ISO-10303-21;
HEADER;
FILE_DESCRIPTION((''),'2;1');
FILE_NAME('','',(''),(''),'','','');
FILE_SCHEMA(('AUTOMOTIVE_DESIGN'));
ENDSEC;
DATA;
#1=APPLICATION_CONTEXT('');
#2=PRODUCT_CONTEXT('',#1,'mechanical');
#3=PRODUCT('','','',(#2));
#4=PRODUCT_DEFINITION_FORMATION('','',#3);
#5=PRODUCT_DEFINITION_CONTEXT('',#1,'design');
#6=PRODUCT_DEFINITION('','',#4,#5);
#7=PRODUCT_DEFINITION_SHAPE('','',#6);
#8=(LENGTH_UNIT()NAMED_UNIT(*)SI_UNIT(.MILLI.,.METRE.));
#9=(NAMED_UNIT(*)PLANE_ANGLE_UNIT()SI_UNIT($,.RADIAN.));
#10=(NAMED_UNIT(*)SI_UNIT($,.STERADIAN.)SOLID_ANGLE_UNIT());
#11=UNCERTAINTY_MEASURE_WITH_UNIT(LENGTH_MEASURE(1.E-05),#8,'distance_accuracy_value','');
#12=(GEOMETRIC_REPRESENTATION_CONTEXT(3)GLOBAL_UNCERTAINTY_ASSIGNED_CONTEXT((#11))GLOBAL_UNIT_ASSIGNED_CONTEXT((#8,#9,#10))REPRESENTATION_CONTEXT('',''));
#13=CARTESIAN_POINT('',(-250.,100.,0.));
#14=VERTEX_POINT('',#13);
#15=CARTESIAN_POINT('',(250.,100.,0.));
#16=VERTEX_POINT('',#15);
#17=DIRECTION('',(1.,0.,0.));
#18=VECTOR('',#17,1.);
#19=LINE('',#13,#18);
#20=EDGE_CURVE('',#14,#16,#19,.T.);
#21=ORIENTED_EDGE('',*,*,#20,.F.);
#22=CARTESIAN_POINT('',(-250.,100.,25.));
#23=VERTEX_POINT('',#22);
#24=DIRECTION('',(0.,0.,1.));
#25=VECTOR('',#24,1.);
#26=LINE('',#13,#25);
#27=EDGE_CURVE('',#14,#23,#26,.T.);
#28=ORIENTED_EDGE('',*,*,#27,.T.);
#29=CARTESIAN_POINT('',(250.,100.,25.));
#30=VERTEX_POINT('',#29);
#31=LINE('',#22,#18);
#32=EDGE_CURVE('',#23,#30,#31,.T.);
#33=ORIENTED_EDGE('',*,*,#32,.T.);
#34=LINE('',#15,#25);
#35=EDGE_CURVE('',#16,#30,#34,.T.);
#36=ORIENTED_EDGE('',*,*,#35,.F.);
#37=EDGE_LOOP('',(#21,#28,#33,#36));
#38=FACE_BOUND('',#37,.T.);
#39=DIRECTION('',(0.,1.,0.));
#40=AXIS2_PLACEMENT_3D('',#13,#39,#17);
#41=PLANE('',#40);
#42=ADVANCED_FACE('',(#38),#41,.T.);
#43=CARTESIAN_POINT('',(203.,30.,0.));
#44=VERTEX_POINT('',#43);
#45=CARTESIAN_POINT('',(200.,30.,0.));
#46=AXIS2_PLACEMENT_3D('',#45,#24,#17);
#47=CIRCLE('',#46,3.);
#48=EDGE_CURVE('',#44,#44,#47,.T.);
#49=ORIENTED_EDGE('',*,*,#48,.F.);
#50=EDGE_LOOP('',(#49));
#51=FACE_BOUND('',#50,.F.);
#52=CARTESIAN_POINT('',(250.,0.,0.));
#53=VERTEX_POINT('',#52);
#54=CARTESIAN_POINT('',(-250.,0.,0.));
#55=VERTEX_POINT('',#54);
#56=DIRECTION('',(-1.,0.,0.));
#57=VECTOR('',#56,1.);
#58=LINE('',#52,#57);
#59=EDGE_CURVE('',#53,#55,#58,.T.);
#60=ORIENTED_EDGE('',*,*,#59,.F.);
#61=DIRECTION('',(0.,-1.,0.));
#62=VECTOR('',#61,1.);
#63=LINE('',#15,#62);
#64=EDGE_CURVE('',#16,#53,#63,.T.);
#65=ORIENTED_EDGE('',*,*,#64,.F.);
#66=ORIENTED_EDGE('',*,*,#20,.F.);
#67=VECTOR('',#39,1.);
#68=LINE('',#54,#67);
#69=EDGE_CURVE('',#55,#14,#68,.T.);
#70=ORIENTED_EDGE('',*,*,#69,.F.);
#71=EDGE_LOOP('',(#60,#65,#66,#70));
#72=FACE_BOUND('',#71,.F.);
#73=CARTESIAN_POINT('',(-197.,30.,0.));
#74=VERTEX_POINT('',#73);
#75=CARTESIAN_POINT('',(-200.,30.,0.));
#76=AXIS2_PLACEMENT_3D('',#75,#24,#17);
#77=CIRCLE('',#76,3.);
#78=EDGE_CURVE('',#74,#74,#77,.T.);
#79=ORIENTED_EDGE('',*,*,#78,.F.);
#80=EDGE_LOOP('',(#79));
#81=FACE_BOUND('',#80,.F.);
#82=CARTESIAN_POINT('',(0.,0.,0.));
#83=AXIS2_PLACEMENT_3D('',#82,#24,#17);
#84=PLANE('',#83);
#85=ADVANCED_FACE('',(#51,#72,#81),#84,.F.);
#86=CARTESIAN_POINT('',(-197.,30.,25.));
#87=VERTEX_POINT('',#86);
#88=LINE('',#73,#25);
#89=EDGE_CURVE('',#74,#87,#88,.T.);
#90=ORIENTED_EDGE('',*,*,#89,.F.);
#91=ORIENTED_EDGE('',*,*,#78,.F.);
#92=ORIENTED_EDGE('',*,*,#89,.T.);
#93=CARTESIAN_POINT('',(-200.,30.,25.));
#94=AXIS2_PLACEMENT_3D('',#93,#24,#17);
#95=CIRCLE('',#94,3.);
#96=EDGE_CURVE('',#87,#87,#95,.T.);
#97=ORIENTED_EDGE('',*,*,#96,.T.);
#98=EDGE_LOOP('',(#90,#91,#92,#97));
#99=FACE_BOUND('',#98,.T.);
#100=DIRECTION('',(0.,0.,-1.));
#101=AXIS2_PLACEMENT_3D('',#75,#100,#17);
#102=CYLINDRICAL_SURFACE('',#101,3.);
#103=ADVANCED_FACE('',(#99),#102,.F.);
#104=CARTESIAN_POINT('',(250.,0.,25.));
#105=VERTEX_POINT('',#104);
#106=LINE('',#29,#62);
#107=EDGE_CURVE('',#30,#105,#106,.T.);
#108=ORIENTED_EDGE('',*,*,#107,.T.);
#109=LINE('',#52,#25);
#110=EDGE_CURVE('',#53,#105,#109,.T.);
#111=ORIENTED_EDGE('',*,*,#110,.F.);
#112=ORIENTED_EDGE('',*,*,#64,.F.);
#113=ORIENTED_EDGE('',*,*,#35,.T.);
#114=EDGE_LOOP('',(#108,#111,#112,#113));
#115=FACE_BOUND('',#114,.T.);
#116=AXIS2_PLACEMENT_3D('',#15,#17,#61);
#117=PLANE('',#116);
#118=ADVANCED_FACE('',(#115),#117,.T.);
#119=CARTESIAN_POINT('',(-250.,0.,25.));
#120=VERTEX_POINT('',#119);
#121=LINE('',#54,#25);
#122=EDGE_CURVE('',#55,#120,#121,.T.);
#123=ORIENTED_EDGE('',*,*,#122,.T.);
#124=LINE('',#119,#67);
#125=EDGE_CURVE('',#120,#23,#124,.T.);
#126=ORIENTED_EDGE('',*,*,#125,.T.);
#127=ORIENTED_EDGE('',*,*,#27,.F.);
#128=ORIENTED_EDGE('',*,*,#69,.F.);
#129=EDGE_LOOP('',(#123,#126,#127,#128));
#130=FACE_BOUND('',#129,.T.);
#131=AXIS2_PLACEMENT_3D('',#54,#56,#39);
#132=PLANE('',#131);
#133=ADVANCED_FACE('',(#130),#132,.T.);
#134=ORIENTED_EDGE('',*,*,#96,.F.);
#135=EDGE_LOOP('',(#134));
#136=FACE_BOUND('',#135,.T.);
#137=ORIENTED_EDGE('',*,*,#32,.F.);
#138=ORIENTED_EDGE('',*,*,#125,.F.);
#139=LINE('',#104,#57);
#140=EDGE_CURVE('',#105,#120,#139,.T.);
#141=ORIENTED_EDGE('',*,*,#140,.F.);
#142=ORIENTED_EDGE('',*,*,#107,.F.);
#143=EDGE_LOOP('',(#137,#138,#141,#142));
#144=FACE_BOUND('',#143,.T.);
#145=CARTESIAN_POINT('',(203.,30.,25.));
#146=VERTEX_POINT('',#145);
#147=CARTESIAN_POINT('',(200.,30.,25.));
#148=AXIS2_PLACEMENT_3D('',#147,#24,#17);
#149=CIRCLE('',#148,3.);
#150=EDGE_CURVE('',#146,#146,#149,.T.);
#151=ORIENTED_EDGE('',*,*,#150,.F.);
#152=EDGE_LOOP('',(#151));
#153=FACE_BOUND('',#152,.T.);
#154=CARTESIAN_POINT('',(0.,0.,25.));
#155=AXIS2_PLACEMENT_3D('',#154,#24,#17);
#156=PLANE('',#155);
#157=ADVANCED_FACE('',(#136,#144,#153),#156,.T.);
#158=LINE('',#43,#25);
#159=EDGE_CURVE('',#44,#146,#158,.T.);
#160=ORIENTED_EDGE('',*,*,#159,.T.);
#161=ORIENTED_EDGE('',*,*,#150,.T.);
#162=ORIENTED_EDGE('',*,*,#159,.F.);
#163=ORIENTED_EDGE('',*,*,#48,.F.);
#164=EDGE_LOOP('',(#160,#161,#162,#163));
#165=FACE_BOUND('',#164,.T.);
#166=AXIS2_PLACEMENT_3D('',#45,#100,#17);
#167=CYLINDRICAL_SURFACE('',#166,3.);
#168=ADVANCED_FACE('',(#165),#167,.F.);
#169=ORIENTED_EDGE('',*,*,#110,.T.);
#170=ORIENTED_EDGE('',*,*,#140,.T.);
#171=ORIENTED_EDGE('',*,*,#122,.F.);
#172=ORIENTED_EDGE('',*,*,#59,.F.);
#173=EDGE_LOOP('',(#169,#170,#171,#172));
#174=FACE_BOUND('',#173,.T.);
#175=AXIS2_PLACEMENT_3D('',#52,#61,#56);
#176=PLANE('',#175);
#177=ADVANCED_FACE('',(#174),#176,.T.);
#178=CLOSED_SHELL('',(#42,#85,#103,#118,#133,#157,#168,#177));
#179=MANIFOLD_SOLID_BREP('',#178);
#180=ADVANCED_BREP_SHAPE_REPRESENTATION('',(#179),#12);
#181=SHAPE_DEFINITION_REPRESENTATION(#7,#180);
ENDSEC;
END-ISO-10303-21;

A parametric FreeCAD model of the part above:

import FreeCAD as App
import Part
import Sketcher

V = App.Vector
Q = App.Units.Quantity


def add_polygon(sketch, points):
    """Adds a closed chain of lines whose ends are joined by coincident constraints."""
    first, n = sketch.GeometryCount, len(points)
    for a, b in zip(points, points[1:] + points[:1]):
        sketch.addGeometry(Part.LineSegment(App.Vector(*a, 0), App.Vector(*b, 0)), False)
    for i in range(n):
        sketch.addConstraint(Sketcher.Constraint("Coincident", first + i, 2, first + (i + 1) % n, 1))

doc = App.newDocument("Part")
params = doc.addObject("Spreadsheet::Sheet", "Params")
for row, (alias, value) in enumerate([
    ("sketch1_diameter", "6 mm"),
    ("sketch1_width", "500 mm"),
    ("sketch1_height", "100 mm"),
    ("pad1_length", "25 mm"),
], start=1):
    params.set(f"A{row}", alias)
    params.set(f"B{row}", "=" + value)
    params.setAlias(f"B{row}", alias)

body = doc.addObject("PartDesign::Body", "Body")

sketch1 = doc.addObject("Sketcher::SketchObject", "Sketch")
body.addObject(sketch1)
sketch1.AttachmentSupport = (doc.XY_Plane, [""])
sketch1.MapMode = "FlatFace"
add_polygon(sketch1, [(250, 100), (-250, 100), (-250, 0), (250, 0)])
sketch1.addGeometry(Part.Circle(V(-200, 30, 0), V(0, 0, 1), 3), False)
sketch1.addGeometry(Part.Circle(V(200, 30, 0), V(0, 0, 1), 3), False)
sketch1.addConstraint([
    Sketcher.Constraint("Horizontal", 0),
    Sketcher.Constraint("Vertical", 1),
    Sketcher.Constraint("Horizontal", 2),
    Sketcher.Constraint("Vertical", 3),
    Sketcher.Constraint("Equal", 4, 5),
    Sketcher.Constraint("Symmetric", 1, 2, 2, 2, -1, 1),
    Sketcher.Constraint("Symmetric", 4, 3, 5, 3, -2),
    Sketcher.Constraint("Diameter", 4, Q("6 mm")),
    Sketcher.Constraint("DistanceX", 0, 2, 0, 1, Q("500 mm")),
    Sketcher.Constraint("DistanceY", 1, 2, 1, 1, Q("100 mm")),
    Sketcher.Constraint("DistanceX", 4, 3, -1, 1, Q("200 mm")),
    Sketcher.Constraint("DistanceY", -1, 1, 4, 3, Q("30 mm")),
])
sketch1.setExpression("Constraints[11]", "Params.sketch1_diameter")
sketch1.setExpression("Constraints[12]", "Params.sketch1_width")
sketch1.setExpression("Constraints[13]", "Params.sketch1_height")
pad1 = doc.addObject("PartDesign::Pad", "Pad")
body.addObject(pad1)
pad1.Profile = sketch1
pad1.setExpression("Length", "Params.pad1_length")

doc.recompute()
